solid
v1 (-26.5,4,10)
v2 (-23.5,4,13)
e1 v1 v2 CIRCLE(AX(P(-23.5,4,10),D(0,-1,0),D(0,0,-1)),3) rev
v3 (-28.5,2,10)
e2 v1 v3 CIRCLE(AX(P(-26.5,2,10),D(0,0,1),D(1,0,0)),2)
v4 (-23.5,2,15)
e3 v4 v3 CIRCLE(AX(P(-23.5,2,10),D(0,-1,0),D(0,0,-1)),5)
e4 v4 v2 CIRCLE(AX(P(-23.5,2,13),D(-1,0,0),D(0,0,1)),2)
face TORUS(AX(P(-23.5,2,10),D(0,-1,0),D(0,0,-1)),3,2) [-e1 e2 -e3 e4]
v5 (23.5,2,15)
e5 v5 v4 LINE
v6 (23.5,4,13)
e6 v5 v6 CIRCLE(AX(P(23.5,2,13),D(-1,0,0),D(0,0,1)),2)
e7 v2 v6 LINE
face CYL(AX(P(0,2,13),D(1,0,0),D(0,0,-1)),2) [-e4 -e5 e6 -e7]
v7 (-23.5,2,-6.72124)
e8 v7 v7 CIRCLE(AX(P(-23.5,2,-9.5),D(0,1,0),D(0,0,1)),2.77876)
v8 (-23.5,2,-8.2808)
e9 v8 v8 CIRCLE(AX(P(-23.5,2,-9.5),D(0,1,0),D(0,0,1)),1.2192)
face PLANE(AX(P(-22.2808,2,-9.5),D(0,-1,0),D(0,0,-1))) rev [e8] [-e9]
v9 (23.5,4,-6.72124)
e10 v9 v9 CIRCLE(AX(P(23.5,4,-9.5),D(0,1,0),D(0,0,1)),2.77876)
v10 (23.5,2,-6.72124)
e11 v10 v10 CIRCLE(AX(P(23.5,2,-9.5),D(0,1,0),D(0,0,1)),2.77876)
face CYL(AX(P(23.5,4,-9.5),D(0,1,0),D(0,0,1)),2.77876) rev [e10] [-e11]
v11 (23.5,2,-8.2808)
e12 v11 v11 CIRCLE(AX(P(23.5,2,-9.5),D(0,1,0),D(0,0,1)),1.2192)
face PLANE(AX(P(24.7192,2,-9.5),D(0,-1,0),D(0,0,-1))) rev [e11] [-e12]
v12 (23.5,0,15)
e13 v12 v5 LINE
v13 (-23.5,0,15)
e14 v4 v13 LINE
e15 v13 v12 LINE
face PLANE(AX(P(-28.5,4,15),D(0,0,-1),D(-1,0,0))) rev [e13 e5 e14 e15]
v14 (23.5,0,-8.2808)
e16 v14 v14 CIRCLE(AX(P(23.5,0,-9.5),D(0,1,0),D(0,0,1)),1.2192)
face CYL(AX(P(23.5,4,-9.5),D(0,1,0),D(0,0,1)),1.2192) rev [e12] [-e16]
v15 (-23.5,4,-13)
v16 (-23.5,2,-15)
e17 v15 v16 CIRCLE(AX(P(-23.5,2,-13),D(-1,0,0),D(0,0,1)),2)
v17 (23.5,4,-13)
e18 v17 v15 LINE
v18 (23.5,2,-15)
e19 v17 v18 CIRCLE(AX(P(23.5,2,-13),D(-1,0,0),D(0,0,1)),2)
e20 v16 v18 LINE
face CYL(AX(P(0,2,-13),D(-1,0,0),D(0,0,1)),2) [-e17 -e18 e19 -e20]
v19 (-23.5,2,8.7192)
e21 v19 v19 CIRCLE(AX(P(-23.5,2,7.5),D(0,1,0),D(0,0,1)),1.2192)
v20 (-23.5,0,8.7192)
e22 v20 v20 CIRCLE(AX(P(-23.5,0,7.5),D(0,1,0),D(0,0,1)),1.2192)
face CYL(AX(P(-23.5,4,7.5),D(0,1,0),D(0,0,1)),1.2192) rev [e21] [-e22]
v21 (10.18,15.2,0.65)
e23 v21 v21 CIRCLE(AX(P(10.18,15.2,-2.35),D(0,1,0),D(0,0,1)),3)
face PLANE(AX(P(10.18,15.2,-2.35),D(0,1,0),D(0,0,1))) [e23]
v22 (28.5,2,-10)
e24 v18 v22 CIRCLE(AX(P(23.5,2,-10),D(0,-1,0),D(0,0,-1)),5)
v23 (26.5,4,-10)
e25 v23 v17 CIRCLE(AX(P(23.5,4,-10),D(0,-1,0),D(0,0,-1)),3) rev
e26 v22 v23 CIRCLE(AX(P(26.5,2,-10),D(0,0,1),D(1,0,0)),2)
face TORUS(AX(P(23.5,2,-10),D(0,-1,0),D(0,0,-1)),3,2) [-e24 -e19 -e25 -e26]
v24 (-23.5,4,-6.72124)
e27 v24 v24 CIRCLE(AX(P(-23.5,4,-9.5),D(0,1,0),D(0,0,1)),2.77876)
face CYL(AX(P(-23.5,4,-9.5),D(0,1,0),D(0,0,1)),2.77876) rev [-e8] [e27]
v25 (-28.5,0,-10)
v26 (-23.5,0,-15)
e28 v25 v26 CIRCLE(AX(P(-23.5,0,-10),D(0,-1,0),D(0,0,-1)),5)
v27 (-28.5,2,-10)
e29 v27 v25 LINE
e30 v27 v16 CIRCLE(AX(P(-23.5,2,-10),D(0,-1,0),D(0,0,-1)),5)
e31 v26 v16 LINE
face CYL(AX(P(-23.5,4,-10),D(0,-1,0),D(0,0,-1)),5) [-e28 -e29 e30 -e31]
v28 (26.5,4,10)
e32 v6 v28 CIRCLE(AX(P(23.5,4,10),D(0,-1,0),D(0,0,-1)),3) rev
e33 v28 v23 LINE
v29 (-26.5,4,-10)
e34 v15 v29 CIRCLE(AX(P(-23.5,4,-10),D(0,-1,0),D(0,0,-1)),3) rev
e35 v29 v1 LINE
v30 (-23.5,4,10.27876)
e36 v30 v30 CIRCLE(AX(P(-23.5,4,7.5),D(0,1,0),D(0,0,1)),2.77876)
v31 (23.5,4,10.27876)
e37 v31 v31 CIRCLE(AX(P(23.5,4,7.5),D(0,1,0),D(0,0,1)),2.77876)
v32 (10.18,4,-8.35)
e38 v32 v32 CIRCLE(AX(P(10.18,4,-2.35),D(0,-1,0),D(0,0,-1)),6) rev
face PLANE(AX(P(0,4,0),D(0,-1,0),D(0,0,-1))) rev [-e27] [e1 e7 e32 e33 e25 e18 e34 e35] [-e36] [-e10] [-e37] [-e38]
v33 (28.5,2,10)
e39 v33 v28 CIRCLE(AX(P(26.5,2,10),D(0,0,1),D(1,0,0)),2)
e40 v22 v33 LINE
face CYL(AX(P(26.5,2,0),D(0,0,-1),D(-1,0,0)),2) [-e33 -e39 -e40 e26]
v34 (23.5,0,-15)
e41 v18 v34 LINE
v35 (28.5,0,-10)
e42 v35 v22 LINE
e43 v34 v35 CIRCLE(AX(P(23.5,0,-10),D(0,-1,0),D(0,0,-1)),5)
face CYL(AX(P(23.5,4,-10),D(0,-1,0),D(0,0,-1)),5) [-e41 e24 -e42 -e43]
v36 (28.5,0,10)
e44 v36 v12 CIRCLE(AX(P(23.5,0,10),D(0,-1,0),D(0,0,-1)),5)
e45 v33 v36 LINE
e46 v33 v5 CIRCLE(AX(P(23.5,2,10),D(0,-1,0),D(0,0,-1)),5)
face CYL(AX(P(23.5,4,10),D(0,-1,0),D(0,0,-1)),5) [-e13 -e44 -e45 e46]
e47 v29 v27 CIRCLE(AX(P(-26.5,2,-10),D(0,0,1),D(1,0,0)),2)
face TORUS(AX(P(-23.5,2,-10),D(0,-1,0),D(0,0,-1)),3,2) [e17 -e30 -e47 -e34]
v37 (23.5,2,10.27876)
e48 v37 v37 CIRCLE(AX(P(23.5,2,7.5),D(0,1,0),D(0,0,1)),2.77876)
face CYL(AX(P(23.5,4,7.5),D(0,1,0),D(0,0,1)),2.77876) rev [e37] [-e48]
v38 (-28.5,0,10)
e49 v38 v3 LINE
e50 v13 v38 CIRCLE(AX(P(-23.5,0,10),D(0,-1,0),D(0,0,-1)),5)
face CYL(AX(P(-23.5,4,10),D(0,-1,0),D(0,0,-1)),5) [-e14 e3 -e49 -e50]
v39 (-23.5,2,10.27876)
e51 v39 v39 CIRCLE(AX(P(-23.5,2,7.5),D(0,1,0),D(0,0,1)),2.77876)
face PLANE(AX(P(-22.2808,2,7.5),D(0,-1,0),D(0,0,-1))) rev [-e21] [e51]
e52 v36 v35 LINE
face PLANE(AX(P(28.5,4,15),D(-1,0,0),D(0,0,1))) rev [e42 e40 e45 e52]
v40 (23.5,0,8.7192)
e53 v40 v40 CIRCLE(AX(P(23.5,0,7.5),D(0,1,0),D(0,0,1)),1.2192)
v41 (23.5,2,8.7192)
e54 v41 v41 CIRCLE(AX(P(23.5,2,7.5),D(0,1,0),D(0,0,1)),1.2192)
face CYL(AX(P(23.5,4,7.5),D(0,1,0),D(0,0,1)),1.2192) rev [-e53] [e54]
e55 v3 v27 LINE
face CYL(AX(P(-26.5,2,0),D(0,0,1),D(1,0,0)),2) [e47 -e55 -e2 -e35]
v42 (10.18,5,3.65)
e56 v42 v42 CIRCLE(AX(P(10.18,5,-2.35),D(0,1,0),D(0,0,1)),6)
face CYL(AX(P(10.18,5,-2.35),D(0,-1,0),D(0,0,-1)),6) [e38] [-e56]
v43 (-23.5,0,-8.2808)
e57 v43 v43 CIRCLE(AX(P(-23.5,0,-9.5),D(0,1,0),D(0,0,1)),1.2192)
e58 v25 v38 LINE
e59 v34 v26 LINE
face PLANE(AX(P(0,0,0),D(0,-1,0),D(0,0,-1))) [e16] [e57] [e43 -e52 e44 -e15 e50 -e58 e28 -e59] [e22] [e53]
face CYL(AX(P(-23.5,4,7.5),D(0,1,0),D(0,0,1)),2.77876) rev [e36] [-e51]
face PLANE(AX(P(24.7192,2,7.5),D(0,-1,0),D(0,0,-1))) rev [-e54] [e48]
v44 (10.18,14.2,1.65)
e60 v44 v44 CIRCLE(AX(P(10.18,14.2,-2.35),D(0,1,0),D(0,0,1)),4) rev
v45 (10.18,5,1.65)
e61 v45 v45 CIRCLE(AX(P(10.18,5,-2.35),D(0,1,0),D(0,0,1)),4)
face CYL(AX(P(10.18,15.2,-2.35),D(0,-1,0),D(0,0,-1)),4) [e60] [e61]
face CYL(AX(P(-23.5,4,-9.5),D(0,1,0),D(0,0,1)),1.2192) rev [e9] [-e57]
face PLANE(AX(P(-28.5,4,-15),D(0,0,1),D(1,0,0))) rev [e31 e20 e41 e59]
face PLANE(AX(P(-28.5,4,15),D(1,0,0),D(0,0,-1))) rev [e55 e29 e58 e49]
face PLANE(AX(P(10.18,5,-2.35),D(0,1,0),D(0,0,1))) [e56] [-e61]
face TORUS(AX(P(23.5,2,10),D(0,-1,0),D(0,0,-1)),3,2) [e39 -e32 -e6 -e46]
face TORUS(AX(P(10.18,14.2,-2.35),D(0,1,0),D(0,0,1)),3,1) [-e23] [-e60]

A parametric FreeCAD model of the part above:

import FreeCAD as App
import Part
import Sketcher
from FreeCAD import Vector


def edges_at(feature, points):
    """Names of the edges that pass closest to the given points."""
    edges = feature.Shape.Edges
    near = lambda p: min(range(len(edges)), key=lambda i: edges[i].distToShape(Part.Vertex(*p))[0])
    return sorted({f"Edge{near(p) + 1}" for p in points})

doc = App.newDocument("Part")
body = doc.addObject("PartDesign::Body", "Body")

# Sketch on XZ plane
sketch1 = doc.addObject("Sketcher::SketchObject", "Sketch")
body.addObject(sketch1)
sketch1.AttachmentSupport = (doc.XZ_Plane, [""])
sketch1.MapMode = "FlatFace"
sketch1.addGeometry([
    Part.LineSegment(Vector(-28, -15, 0), Vector(-28, 15, 0)),
    Part.LineSegment(Vector(-28, 15, 0), Vector(28, 15, 0)),
    Part.LineSegment(Vector(28, 15, 0), Vector(28, -15, 0)),
    Part.LineSegment(Vector(28, -15, 0), Vector(-28, -15, 0)),
], False)
sketch1.addConstraint([
    Sketcher.Constraint("Coincident", 0, 2, 1, 1),
    Sketcher.Constraint("Coincident", 1, 2, 2, 1),
    Sketcher.Constraint("Coincident", 2, 2, 3, 1),
    Sketcher.Constraint("Coincident", 3, 2, 0, 1),
    Sketcher.Constraint("Vertical", 0),
    Sketcher.Constraint("Horizontal", 1),
    Sketcher.Constraint("Vertical", 2),
    Sketcher.Constraint("Horizontal", 3),
    Sketcher.Constraint("Symmetric", 0, 2, 2, 2, -1, 1),
    Sketcher.Constraint("DistanceX", 1, 1, 1, 2, 57.0),
    Sketcher.Constraint("DistanceY", 0, 1, 0, 2, 30.0),
])
pad1 = doc.addObject("PartDesign::Pad", "Pad")
body.addObject(pad1)
pad1.Profile = sketch1
pad1.Length = 4
pad1.Reversed = True

# Sketch on XZ plane
sketch2 = doc.addObject("Sketcher::SketchObject", "Sketch001")
body.addObject(sketch2)
sketch2.AttachmentSupport = (doc.XZ_Plane, [""])
sketch2.MapMode = "FlatFace"
sketch2.AttachmentOffset = App.Placement(Vector(0, 0, -4), App.Rotation())
sketch2.addGeometry(Part.Circle(Vector(10.2, -2.4, 0), Vector(0, 0, 1), 4), False)
sketch2.addConstraint([
    Sketcher.Constraint("Diameter", 0, 8.0),
    Sketcher.Constraint("DistanceX", -1, 1, 0, 3, 10.18),
    Sketcher.Constraint("DistanceY", 0, 3, -1, 1, 2.35),
])
pad2 = doc.addObject("PartDesign::Pad", "Pad001")
body.addObject(pad2)
pad2.Profile = sketch2
pad2.Length = 11.2
pad2.Reversed = True

# Sketch on XZ plane
sketch3 = doc.addObject("Sketcher::SketchObject", "Sketch002")
body.addObject(sketch3)
sketch3.AttachmentSupport = (doc.XZ_Plane, [""])
sketch3.MapMode = "FlatFace"
sketch3.AttachmentOffset = App.Placement(Vector(0, 0, -4), App.Rotation())
sketch3.addGeometry(Part.Circle(Vector(10, -2, 0), Vector(0, 0, 1), 6), False)
sketch3.addConstraint([
    Sketcher.Constraint("Diameter", 0, 12.0),
    Sketcher.Constraint("DistanceX", -1, 1, 0, 3, 10.18),
    Sketcher.Constraint("DistanceY", 0, 3, -1, 1, 2.35),
])
pad3 = doc.addObject("PartDesign::Pad", "Pad002")
body.addObject(pad3)
pad3.Profile = sketch3
pad3.Length = 1
pad3.Reversed = True

# Sketch on XZ plane
sketch4 = doc.addObject("Sketcher::SketchObject", "Sketch003")
body.addObject(sketch4)
sketch4.AttachmentSupport = (doc.XZ_Plane, [""])
sketch4.MapMode = "FlatFace"
sketch4.AttachmentOffset = App.Placement(Vector(0, 0, -4), App.Rotation())
sketch4.addGeometry([
    Part.Circle(Vector(-23.5, -9.5, 0), Vector(0, 0, 1), 1.2),
    Part.Circle(Vector(-23.5, 7.5, 0), Vector(0, 0, 1), 1.2),
    Part.Circle(Vector(23.5, 7.5, 0), Vector(0, 0, 1), 1.2),
    Part.Circle(Vector(23.5, -9.5, 0), Vector(0, 0, 1), 1.2),
], False)
sketch4.addConstraint([
    Sketcher.Constraint("Equal", 0, 1),
    Sketcher.Constraint("Equal", 1, 2),
    Sketcher.Constraint("Equal", 2, 3),
    Sketcher.Constraint("Symmetric", 1, 3, 2, 3, -2),
    Sketcher.Constraint("Symmetric", 0, 3, 3, 3, -2),
    Sketcher.Constraint("Vertical", 0, 3, 1, 3),
    Sketcher.Constraint("DistanceY", 0, 3, 1, 3, 17.0),
    Sketcher.Constraint("DistanceX", 1, 3, 2, 3, 47.0),
    Sketcher.Constraint("Diameter", 0, 2.4384),
    Sketcher.Constraint("DistanceY", 0, 3, -1, 1, 9.5),
])
doc.recompute()
hole = doc.addObject("PartDesign::Hole", "Hole")
body.addObject(hole)
hole.Profile = sketch4
hole.ThreadType = "None"
hole.Diameter = 2.4384
hole.DepthType = "ThroughAll"
hole.HoleCutType = "Counterbore"
hole.HoleCutDiameter = 5.55752
hole.HoleCutDepth = 2
hole.Reversed = True
doc.recompute()

fillet = doc.addObject("PartDesign::Fillet", "Fillet")
body.addObject(fillet)
fillet.Base = (hole, edges_at(hole, [
    (-28.5, 2, -15),
    (28.5, 2, -15),
    (28.5, 2, 15),
    (-28.5, 2, 15),
]))
fillet.Radius = 5
doc.recompute()

fillet2 = doc.addObject("PartDesign::Fillet", "Fillet001")
body.addObject(fillet2)
fillet2.Base = (fillet, edges_at(fillet, [
    (0, 4, 15),
    (-28.5, 4, 0),
    (28.5, 4, 0),
    (0, 4, -15),
    (27.036, 4, 13.536),
    (27.036, 4, -13.536),
    (-27.036, 4, -13.536),
    (-27.036, 4, 13.536),
]))
fillet2.Radius = 2
doc.recompute()

fillet3 = doc.addObject("PartDesign::Fillet", "Fillet002")
body.addObject(fillet3)
fillet3.Base = (fillet2, edges_at(fillet2, [(10.18, 15.2, 1.65)]))
fillet3.Radius = 1

doc.recompute()
